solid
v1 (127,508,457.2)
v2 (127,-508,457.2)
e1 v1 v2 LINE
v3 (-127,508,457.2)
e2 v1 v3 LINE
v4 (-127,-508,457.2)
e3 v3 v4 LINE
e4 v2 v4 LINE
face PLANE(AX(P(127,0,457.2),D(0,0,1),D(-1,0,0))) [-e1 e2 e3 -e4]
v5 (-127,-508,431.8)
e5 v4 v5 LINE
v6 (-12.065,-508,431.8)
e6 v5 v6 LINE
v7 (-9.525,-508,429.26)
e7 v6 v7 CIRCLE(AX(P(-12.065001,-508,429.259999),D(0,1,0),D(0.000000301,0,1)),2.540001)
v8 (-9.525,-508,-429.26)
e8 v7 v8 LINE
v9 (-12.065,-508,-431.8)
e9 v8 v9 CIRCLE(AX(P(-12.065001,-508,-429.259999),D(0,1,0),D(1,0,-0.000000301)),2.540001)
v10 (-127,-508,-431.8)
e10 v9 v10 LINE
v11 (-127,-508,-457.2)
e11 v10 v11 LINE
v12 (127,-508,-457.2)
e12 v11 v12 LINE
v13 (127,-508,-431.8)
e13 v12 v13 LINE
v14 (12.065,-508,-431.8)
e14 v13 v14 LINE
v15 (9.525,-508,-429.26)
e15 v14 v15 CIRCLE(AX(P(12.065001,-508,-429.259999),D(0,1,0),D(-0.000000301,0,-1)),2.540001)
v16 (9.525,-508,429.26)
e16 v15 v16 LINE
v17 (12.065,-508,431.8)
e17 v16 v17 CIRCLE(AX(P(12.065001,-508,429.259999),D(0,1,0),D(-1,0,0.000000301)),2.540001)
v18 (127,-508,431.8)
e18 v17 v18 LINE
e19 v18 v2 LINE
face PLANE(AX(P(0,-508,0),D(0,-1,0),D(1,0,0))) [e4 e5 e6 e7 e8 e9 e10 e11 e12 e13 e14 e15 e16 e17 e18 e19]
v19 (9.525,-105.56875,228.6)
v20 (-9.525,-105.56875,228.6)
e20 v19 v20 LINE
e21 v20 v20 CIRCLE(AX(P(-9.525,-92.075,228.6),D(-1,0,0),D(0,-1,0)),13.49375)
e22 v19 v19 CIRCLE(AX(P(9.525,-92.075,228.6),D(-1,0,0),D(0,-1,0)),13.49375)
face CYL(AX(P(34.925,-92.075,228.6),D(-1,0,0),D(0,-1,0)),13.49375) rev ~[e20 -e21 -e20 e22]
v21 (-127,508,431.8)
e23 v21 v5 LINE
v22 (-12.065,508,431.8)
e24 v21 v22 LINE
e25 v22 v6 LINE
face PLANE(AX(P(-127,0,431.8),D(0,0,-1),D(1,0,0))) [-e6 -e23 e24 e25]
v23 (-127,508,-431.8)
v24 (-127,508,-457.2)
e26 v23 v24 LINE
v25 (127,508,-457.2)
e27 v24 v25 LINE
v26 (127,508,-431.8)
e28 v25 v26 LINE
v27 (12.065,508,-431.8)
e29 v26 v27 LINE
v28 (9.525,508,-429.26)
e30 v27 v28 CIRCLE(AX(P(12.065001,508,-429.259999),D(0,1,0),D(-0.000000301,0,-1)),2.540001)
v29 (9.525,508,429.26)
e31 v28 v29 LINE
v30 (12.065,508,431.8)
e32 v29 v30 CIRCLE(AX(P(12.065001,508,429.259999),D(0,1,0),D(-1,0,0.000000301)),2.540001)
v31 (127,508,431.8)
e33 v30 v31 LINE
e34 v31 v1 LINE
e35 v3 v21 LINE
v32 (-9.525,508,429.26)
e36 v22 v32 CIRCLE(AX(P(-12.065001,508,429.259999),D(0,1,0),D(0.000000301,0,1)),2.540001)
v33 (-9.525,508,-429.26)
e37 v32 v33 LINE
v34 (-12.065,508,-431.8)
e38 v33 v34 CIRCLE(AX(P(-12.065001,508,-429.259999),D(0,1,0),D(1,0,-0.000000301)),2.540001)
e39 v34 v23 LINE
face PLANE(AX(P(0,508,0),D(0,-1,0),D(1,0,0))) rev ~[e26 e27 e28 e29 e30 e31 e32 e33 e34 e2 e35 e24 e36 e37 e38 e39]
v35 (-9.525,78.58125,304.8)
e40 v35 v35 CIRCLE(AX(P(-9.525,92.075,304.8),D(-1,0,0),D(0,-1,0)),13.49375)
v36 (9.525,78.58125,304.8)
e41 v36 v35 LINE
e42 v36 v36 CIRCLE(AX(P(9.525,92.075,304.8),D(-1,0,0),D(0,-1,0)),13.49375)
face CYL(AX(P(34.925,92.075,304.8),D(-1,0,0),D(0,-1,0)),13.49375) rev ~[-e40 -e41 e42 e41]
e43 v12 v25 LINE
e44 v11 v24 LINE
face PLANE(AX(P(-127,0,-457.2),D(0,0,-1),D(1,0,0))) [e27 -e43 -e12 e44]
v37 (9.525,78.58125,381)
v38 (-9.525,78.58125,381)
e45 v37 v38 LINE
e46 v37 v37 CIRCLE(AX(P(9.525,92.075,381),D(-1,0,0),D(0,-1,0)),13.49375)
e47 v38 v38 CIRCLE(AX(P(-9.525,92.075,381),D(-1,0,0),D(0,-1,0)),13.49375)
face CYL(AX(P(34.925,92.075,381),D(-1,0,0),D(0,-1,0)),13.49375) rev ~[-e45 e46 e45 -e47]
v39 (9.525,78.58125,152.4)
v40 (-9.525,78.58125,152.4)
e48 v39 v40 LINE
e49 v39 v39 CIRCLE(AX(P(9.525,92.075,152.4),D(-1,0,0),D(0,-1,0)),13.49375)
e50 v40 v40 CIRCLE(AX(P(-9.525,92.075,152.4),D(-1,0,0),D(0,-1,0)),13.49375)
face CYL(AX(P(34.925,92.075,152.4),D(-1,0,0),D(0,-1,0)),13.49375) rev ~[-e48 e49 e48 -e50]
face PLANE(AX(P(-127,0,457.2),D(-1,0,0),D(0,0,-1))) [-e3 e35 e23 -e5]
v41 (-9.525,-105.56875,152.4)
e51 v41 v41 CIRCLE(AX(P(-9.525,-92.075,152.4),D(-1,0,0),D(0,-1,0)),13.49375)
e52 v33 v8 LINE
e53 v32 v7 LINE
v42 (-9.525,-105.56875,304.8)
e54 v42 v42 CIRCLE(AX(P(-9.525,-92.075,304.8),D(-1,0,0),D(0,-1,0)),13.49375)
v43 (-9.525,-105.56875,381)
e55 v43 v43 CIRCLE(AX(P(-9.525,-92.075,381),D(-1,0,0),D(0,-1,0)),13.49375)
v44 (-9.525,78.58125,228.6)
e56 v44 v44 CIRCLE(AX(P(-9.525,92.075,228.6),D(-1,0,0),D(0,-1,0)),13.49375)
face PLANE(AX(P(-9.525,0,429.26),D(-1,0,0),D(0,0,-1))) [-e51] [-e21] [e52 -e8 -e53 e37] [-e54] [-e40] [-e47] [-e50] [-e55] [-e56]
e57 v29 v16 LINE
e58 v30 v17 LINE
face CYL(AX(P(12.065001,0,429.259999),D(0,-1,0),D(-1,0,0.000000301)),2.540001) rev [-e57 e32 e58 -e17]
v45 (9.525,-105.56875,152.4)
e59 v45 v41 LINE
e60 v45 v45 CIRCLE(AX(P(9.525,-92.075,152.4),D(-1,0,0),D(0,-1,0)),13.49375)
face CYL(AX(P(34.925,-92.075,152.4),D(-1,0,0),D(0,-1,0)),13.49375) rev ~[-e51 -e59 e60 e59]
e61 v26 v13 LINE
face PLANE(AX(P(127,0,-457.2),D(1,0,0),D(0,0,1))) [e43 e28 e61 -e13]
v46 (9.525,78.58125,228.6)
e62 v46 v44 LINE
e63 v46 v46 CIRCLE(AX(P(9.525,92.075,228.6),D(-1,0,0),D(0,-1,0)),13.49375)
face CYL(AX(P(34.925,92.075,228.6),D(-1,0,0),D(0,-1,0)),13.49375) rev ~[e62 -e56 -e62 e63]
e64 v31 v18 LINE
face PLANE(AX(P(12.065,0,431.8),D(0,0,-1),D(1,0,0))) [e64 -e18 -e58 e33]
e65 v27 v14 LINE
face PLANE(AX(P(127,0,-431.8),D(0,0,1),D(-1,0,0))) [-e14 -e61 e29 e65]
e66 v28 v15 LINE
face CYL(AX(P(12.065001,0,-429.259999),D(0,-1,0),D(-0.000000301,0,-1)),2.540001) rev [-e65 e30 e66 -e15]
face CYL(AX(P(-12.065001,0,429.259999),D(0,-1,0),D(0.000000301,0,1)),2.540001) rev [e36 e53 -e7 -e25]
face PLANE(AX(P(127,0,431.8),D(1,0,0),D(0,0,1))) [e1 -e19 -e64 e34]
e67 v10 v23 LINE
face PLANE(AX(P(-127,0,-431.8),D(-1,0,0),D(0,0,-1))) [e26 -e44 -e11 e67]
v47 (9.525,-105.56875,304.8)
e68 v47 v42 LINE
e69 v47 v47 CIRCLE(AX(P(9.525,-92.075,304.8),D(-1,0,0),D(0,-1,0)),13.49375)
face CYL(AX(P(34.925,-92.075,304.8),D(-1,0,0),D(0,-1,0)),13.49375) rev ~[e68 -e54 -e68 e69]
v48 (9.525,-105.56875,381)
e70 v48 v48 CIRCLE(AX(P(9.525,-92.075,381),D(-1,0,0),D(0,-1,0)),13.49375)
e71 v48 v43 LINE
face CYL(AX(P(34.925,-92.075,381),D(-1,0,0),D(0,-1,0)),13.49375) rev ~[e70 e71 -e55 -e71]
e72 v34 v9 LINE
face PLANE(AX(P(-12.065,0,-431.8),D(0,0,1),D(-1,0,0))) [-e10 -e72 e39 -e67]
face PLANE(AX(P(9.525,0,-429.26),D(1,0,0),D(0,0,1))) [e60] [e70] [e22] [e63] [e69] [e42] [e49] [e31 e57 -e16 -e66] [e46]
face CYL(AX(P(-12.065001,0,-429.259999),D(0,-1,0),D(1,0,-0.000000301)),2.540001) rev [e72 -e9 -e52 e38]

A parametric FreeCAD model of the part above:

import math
import FreeCAD as App
import Part
import Sketcher
Q = App.Units.Quantity

doc = App.newDocument("Part")
body = doc.addObject("PartDesign::Body", "Body")

# Sketch on XZ plane
sketch1 = body.newObject("Sketcher::SketchObject", "Sketch")
sketch1.AttachmentSupport = (doc.getObject("XZ_Plane"), [""])
sketch1.MapMode = "FlatFace"
sketch1.addGeometry([
    Part.LineSegment(App.Vector(127, -457.2, 0), App.Vector(127, -431.8, 0)),  # 0
    Part.LineSegment(App.Vector(127, -431.8, 0), App.Vector(12.1, -431.8, 0)),  # 1
    Part.ArcOfCircle(Part.Circle(App.Vector(12.1, -429.3, 0), App.Vector(0, 0, 1), 2.5), math.radians(-180), math.radians(-90)),  # 2
    Part.LineSegment(App.Vector(9.5, -429.3, 0), App.Vector(9.5, 429.3, 0)),  # 3
    Part.ArcOfCircle(Part.Circle(App.Vector(12.1, 429.3, 0), App.Vector(0, 0, 1), 2.5), math.radians(90), math.radians(180)),  # 4
    Part.LineSegment(App.Vector(12.1, 431.8, 0), App.Vector(127, 431.8, 0)),  # 5
    Part.LineSegment(App.Vector(127, 431.8, 0), App.Vector(127, 457.2, 0)),  # 6
    Part.LineSegment(App.Vector(127, 457.2, 0), App.Vector(-127, 457.2, 0)),  # 7
    Part.LineSegment(App.Vector(-127, 457.2, 0), App.Vector(-127, 431.8, 0)),  # 8
    Part.LineSegment(App.Vector(-127, 431.8, 0), App.Vector(-12.1, 431.8, 0)),  # 9
    Part.ArcOfCircle(Part.Circle(App.Vector(-12.1, 429.3, 0), App.Vector(0, 0, 1), 2.5), math.radians(0), math.radians(90)),  # 10
    Part.LineSegment(App.Vector(-9.5, 429.3, 0), App.Vector(-9.5, -429.3, 0)),  # 11
    Part.ArcOfCircle(Part.Circle(App.Vector(-12.1, -429.3, 0), App.Vector(0, 0, 1), 2.5), math.radians(-90), math.radians(0)),  # 12
    Part.LineSegment(App.Vector(-12.1, -431.8, 0), App.Vector(-127, -431.8, 0)),  # 13
    Part.LineSegment(App.Vector(-127, -431.8, 0), App.Vector(-127, -457.2, 0)),  # 14
    Part.LineSegment(App.Vector(-127, -457.2, 0), App.Vector(127, -457.2, 0)),  # 15
], False)
sketch1.addConstraint([
    Sketcher.Constraint("Coincident", 0, 2, 1, 1),
    Sketcher.Constraint("Tangent", 1, 2, 2, 2),
    Sketcher.Constraint("Tangent", 2, 1, 3, 1),
    Sketcher.Constraint("Tangent", 3, 2, 4, 2),
    Sketcher.Constraint("Tangent", 4, 1, 5, 1),
    Sketcher.Constraint("Coincident", 5, 2, 6, 1),
    Sketcher.Constraint("Coincident", 6, 2, 7, 1),
    Sketcher.Constraint("Coincident", 7, 2, 8, 1),
    Sketcher.Constraint("Coincident", 8, 2, 9, 1),
    Sketcher.Constraint("Tangent", 9, 2, 10, 2),
    Sketcher.Constraint("Tangent", 10, 1, 11, 1),
    Sketcher.Constraint("Tangent", 11, 2, 12, 2),
    Sketcher.Constraint("Tangent", 12, 1, 13, 1),
    Sketcher.Constraint("Coincident", 13, 2, 14, 1),
    Sketcher.Constraint("Coincident", 14, 2, 15, 1),
    Sketcher.Constraint("Coincident", 15, 2, 0, 1),
    Sketcher.Constraint("Vertical", 0),
    Sketcher.Constraint("Horizontal", 1),
    Sketcher.Constraint("Vertical", 3),
    Sketcher.Constraint("Horizontal", 5),
    Sketcher.Constraint("Vertical", 6),
    Sketcher.Constraint("Horizontal", 7),
    Sketcher.Constraint("Vertical", 8),
    Sketcher.Constraint("Horizontal", 9),
    Sketcher.Constraint("Vertical", 11),
    Sketcher.Constraint("Horizontal", 13),
    Sketcher.Constraint("Vertical", 14),
    Sketcher.Constraint("Horizontal", 15),
    Sketcher.Constraint("Equal", 2, 4),
    Sketcher.Constraint("Equal", 4, 10),
    Sketcher.Constraint("Equal", 10, 12),
    Sketcher.Constraint("Symmetric", 2, 3, 10, 3, -1, 1),
    Sketcher.Constraint("Symmetric", 5, 2, 13, 2, -1, 1),
    Sketcher.Constraint("Symmetric", 7, 2, 15, 2, -1, 1),
    Sketcher.Constraint("Symmetric", 5, 2, 8, 2, -2),
    Sketcher.Constraint("Radius", 2, Q("0.1 in")),
    Sketcher.Constraint("DistanceX", 7, 2, 7, 1, Q("10 in")),
    Sketcher.Constraint("DistanceY", 0, 1, 0, 2, Q("1 in")),
    Sketcher.Constraint("DistanceY", 3, 1, 3, 2, Q("33.8 in")),
    Sketcher.Constraint("DistanceX", 1, 2, 1, 1, Q("4.525 in")),
])
pad1 = body.newObject("PartDesign::Pad", "Pad")
pad1.Profile = sketch1
pad1.Length = Q("40 in")
pad1.Midplane = True

# Sketch on YZ plane
sketch2 = body.newObject("Sketcher::SketchObject", "Sketch001")
sketch2.AttachmentSupport = (doc.getObject("YZ_Plane"), [""])
sketch2.MapMode = "FlatFace"
sketch2.AttachmentOffset = App.Placement(App.Vector(0, 0, 0.375 * 25.4), App.Rotation())
sketch2.addGeometry([
    Part.Circle(App.Vector(92, 381, 0), App.Vector(0, 0, 1), 13),
    Part.Circle(App.Vector(92, 305, 0), App.Vector(0, 0, 1), 13),
    Part.Circle(App.Vector(92, 229, 0), App.Vector(0, 0, 1), 13),
    Part.Circle(App.Vector(92, 152, 0), App.Vector(0, 0, 1), 13),
], False)
sketch2.addConstraint([
    Sketcher.Constraint("Equal", 0, 1),
    Sketcher.Constraint("Equal", 1, 2),
    Sketcher.Constraint("Equal", 2, 3),
    Sketcher.Constraint("Vertical", 0, 3, 1, 3),
    Sketcher.Constraint("Vertical", 1, 3, 2, 3),
    Sketcher.Constraint("Vertical", 2, 3, 3, 3),
    Sketcher.Constraint("Diameter", 0, Q("1.0625 in")),
    Sketcher.Constraint("DistanceY", -1, 1, 0, 3, Q("15 in")),
    Sketcher.Constraint("DistanceY", -1, 1, 1, 3, Q("12 in")),
    Sketcher.Constraint("DistanceY", -1, 1, 2, 3, Q("9 in")),
    Sketcher.Constraint("DistanceY", -1, 1, 3, 3, Q("6 in")),
    Sketcher.Constraint("DistanceX", -1, 1, 0, 3, Q("3.625 in")),
])
doc.recompute()
hole = body.newObject("PartDesign::Hole", "Hole")
hole.Profile = sketch2
hole.ThreadType = "None"
hole.Diameter = Q("1.0625 in")
hole.DepthType = "Dimension"
hole.Depth = Q("1 in")
hole.DrillPoint = "Flat"

# Sketch on YZ plane
sketch3 = body.newObject("Sketcher::SketchObject", "Sketch002")
sketch3.AttachmentSupport = (doc.getObject("YZ_Plane"), [""])
sketch3.MapMode = "FlatFace"
sketch3.AttachmentOffset = App.Placement(App.Vector(0, 0, 0.375 * 25.4), App.Rotation())
sketch3.addGeometry([
    Part.Circle(App.Vector(-92, 381, 0), App.Vector(0, 0, 1), 13),
    Part.Circle(App.Vector(-92, 305, 0), App.Vector(0, 0, 1), 13),
    Part.Circle(App.Vector(-92, 229, 0), App.Vector(0, 0, 1), 13),
    Part.Circle(App.Vector(-92, 152, 0), App.Vector(0, 0, 1), 13),
], False)
sketch3.addConstraint([
    Sketcher.Constraint("Equal", 0, 1),
    Sketcher.Constraint("Equal", 1, 2),
    Sketcher.Constraint("Equal", 2, 3),
    Sketcher.Constraint("Vertical", 0, 3, 1, 3),
    Sketcher.Constraint("Vertical", 1, 3, 2, 3),
    Sketcher.Constraint("Vertical", 2, 3, 3, 3),
    Sketcher.Constraint("Diameter", 0, Q("1.0625 in")),
    Sketcher.Constraint("DistanceY", -1, 1, 0, 3, Q("15 in")),
    Sketcher.Constraint("DistanceY", -1, 1, 1, 3, Q("12 in")),
    Sketcher.Constraint("DistanceY", -1, 1, 2, 3, Q("9 in")),
    Sketcher.Constraint("DistanceY", -1, 1, 3, 3, Q("6 in")),
    Sketcher.Constraint("DistanceX", 0, 3, -1, 1, Q("3.625 in")),
])
doc.recompute()
hole2 = body.newObject("PartDesign::Hole", "Hole001")
hole2.Profile = sketch3
hole2.ThreadType = "None"
hole2.Diameter = Q("1.0625 in")
hole2.DepthType = "Dimension"
hole2.Depth = Q("1 in")
hole2.DrillPoint = "Flat"

doc.recompute()
